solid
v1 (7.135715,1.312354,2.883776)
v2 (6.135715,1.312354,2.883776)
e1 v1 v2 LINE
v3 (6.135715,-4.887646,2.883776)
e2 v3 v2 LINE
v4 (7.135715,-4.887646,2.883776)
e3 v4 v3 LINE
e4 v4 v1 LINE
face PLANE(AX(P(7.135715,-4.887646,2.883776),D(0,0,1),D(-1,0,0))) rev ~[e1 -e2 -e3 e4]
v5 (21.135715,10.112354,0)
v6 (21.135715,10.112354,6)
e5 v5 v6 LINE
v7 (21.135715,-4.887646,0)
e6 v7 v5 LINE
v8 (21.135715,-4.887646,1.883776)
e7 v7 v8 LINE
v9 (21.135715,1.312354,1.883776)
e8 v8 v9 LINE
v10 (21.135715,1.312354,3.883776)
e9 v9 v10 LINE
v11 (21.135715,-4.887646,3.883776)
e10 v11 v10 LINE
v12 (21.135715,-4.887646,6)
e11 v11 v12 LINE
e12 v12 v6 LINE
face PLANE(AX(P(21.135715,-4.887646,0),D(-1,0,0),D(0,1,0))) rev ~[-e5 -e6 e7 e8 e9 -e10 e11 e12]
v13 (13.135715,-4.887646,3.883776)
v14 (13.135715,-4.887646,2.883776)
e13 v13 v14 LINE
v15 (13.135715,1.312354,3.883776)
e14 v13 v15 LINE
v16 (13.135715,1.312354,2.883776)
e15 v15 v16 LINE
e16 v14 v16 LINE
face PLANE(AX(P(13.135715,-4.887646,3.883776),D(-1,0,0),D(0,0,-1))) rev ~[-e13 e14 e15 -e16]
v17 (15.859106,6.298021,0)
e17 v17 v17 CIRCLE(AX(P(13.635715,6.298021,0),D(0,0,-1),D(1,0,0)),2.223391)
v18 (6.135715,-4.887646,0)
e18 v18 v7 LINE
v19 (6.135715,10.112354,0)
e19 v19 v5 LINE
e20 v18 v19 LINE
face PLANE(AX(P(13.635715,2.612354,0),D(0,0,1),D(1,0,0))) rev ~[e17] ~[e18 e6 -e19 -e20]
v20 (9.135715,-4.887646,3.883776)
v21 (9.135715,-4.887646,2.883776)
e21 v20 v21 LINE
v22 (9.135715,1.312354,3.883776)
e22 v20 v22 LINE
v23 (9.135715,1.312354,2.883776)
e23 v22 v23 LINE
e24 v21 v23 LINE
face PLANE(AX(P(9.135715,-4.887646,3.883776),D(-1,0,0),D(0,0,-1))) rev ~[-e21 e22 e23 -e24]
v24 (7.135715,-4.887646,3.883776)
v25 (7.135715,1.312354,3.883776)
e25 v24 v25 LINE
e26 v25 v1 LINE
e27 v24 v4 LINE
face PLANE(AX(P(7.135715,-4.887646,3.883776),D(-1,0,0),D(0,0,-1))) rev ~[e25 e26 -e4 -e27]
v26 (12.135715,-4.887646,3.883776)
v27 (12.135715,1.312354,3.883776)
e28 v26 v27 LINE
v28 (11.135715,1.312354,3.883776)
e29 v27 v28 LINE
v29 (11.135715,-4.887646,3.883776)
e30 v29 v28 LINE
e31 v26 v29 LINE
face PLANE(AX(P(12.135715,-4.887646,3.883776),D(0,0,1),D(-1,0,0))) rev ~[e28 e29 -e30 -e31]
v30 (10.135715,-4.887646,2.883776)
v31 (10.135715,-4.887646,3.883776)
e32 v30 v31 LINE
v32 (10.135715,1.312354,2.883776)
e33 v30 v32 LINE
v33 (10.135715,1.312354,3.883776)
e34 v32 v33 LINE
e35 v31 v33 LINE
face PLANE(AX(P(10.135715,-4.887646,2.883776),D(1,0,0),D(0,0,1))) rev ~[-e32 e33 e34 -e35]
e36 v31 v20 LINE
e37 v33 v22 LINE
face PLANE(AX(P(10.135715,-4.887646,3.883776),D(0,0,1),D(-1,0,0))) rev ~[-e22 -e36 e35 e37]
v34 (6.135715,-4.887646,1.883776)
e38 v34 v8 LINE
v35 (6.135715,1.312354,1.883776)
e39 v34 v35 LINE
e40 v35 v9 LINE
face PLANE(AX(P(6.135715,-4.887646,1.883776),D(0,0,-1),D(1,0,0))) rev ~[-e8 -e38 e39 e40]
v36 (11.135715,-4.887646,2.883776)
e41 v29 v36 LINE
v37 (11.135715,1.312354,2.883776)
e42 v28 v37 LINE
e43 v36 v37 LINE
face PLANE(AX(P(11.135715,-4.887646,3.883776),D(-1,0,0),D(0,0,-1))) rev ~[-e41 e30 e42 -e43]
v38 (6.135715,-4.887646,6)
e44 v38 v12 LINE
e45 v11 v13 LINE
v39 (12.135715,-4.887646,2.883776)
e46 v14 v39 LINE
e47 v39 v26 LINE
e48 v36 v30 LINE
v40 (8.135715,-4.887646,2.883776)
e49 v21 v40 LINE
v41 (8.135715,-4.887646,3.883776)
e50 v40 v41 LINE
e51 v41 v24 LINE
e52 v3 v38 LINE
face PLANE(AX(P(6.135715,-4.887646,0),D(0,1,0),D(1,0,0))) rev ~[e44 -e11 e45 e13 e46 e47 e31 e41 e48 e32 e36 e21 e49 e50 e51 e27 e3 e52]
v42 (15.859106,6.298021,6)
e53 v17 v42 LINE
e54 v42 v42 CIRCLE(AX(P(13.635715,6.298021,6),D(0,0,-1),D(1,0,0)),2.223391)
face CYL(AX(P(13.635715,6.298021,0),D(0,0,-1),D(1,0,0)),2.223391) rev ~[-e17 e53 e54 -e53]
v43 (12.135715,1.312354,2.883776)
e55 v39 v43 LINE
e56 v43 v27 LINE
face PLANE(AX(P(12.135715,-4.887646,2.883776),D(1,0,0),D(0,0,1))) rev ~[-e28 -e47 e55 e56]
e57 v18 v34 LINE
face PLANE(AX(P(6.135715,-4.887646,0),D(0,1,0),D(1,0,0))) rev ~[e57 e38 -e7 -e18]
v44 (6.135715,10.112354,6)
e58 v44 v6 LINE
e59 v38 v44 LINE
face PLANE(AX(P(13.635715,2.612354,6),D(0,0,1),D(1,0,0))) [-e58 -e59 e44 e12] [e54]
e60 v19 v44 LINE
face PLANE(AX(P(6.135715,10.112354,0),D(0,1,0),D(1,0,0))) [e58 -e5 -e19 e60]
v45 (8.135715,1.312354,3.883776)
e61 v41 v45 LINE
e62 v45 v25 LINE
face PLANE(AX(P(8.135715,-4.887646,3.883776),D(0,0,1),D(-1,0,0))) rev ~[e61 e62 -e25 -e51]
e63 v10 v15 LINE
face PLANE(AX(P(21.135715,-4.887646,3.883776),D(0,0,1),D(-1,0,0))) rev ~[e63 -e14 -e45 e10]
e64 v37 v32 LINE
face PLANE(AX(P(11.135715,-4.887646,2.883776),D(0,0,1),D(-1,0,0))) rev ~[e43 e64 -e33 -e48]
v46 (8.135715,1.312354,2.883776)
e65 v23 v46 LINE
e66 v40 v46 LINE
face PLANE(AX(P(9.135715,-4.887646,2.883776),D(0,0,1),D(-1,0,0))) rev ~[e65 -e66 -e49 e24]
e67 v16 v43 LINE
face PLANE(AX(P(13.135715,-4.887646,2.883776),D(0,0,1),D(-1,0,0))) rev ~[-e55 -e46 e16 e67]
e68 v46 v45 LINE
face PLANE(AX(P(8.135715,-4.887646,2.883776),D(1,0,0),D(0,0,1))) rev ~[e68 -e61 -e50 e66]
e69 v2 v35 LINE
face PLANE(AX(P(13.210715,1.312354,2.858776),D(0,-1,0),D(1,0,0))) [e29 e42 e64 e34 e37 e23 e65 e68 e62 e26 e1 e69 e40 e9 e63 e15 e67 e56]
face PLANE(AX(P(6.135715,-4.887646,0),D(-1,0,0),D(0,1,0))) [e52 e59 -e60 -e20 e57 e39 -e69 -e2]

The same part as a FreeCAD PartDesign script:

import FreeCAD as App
import Part
import Sketcher

V = App.Vector
Q = App.Units.Quantity


def add_polygon(sketch, points):
    """Adds a closed chain of lines whose ends are joined by coincident constraints."""
    first, n = sketch.GeometryCount, len(points)
    for a, b in zip(points, points[1:] + points[:1]):
        sketch.addGeometry(Part.LineSegment(App.Vector(*a, 0), App.Vector(*b, 0)), False)
    for i in range(n):
        sketch.addConstraint(Sketcher.Constraint("Coincident", first + i, 2, first + (i + 1) % n, 1))

doc = App.newDocument("Part")
body = doc.addObject("PartDesign::Body", "Body")

# Sketch on XY plane
sketch1 = body.newObject("Sketcher::SketchObject", "Sketch")
sketch1.AttachmentSupport = (doc.getObject("XY_Plane"), [""])
sketch1.MapMode = "FlatFace"
add_polygon(sketch1, [(6, 10), (6, -5), (21, -5), (21, 10)])  # lines 0-3
sketch1.addConstraint([
    Sketcher.Constraint("Vertical", 0),
    Sketcher.Constraint("Horizontal", 1),
    Sketcher.Constraint("Vertical", 2),
    Sketcher.Constraint("Horizontal", 3),
    Sketcher.Constraint("Equal", 3, 0),
    Sketcher.Constraint("DistanceX", 1, 1, 1, 2, Q("15 mm")),
    Sketcher.Constraint("DistanceX", -1, 1, 0, 2, Q("6.135715 mm")),
    Sketcher.Constraint("DistanceY", 0, 2, -1, 1, Q("4.887646 mm")),
])
pad1 = body.newObject("PartDesign::Pad", "Pad")
pad1.Profile = sketch1
pad1.Length = 6

# Sketch on XZ plane
sketch2 = body.newObject("Sketcher::SketchObject", "Sketch001")
sketch2.AttachmentSupport = (doc.getObject("XZ_Plane"), [""])
sketch2.MapMode = "FlatFace"
sketch2.AttachmentOffset = App.Placement(V(0, 0, 4.887646), App.Rotation())
add_polygon(sketch2, [(6.1, 2.9), (6.1, 1.9), (21.1, 1.9), (21.1, 3.9), (13.1, 3.9), (13.1, 2.9), (12.1, 2.9), (12.1, 3.9), (11.1, 3.9), (11.1, 2.9), (10.1, 2.9), (10.1, 3.9), (9.1, 3.9), (9.1, 2.9), (8.1, 2.9), (8.1, 3.9), (7.1, 3.9), (7.1, 2.9)])  # lines 0-17
sketch2.addConstraint([
    Sketcher.Constraint("Vertical", 0),
    Sketcher.Constraint("Horizontal", 1),
    Sketcher.Constraint("Vertical", 2),
    Sketcher.Constraint("Horizontal", 3),
    Sketcher.Constraint("Vertical", 4),
    Sketcher.Constraint("Horizontal", 5),
    Sketcher.Constraint("Vertical", 6),
    Sketcher.Constraint("Horizontal", 7),
    Sketcher.Constraint("Vertical", 8),
    Sketcher.Constraint("Horizontal", 9),
    Sketcher.Constraint("Vertical", 10),
    Sketcher.Constraint("Horizontal", 11),
    Sketcher.Constraint("Vertical", 12),
    Sketcher.Constraint("Horizontal", 13),
    Sketcher.Constraint("Vertical", 14),
    Sketcher.Constraint("Horizontal", 15),
    Sketcher.Constraint("Vertical", 16),
    Sketcher.Constraint("Horizontal", 17),
    Sketcher.Constraint("Horizontal", 3, 2, 6, 2),
    Sketcher.Constraint("Horizontal", 5, 2, 8, 2),
    Sketcher.Constraint("Horizontal", 7, 2, 10, 2),
    Sketcher.Constraint("Horizontal", 9, 2, 12, 2),
    Sketcher.Constraint("Horizontal", 11, 2, 14, 2),
    Sketcher.Constraint("Horizontal", 13, 2, 16, 2),
    Sketcher.Constraint("Equal", 5, 7),
    Sketcher.Constraint("Equal", 7, 9),
    Sketcher.Constraint("Equal", 9, 11),
    Sketcher.Constraint("Equal", 11, 13),
    Sketcher.Constraint("Equal", 13, 15),
    Sketcher.Constraint("Equal", 15, 17),
    Sketcher.Constraint("Equal", 17, 0),
    Sketcher.Constraint("Equal", 0, 4),
    Sketcher.Constraint("DistanceX", 1, 1, 1, 2, Q("15 mm")),
    Sketcher.Constraint("DistanceX", 3, 2, 3, 1, Q("8 mm")),
    Sketcher.Constraint("DistanceX", -1, 1, 0, 2, Q("6.135715 mm")),
    Sketcher.Constraint("DistanceY", -1, 1, 0, 2, Q("1.883776 mm")),
])
pocket1 = body.newObject("PartDesign::Pocket", "Pocket")
pocket1.Profile = sketch2
pocket1.Length = 6.2

# Sketch on XY plane
sketch3 = body.newObject("Sketcher::SketchObject", "Sketch002")
sketch3.AttachmentSupport = (doc.getObject("XY_Plane"), [""])
sketch3.MapMode = "FlatFace"
sketch3.addGeometry(Part.Circle(V(13.6, 6.3, 0), V(0, 0, 1), 2.2), False)
sketch3.addConstraint([
    Sketcher.Constraint("Diameter", 0, Q("4.446782 mm")),
    Sketcher.Constraint("DistanceY", -1, 1, 0, 3, Q("6.298021 mm")),
    Sketcher.Constraint("DistanceX", -1, 1, 0, 3, Q("13.635715 mm")),
])
pocket2 = body.newObject("PartDesign::Pocket", "Pocket001")
pocket2.Profile = sketch3
pocket2.Length = 25
pocket2.Reversed = True

doc.recompute()
